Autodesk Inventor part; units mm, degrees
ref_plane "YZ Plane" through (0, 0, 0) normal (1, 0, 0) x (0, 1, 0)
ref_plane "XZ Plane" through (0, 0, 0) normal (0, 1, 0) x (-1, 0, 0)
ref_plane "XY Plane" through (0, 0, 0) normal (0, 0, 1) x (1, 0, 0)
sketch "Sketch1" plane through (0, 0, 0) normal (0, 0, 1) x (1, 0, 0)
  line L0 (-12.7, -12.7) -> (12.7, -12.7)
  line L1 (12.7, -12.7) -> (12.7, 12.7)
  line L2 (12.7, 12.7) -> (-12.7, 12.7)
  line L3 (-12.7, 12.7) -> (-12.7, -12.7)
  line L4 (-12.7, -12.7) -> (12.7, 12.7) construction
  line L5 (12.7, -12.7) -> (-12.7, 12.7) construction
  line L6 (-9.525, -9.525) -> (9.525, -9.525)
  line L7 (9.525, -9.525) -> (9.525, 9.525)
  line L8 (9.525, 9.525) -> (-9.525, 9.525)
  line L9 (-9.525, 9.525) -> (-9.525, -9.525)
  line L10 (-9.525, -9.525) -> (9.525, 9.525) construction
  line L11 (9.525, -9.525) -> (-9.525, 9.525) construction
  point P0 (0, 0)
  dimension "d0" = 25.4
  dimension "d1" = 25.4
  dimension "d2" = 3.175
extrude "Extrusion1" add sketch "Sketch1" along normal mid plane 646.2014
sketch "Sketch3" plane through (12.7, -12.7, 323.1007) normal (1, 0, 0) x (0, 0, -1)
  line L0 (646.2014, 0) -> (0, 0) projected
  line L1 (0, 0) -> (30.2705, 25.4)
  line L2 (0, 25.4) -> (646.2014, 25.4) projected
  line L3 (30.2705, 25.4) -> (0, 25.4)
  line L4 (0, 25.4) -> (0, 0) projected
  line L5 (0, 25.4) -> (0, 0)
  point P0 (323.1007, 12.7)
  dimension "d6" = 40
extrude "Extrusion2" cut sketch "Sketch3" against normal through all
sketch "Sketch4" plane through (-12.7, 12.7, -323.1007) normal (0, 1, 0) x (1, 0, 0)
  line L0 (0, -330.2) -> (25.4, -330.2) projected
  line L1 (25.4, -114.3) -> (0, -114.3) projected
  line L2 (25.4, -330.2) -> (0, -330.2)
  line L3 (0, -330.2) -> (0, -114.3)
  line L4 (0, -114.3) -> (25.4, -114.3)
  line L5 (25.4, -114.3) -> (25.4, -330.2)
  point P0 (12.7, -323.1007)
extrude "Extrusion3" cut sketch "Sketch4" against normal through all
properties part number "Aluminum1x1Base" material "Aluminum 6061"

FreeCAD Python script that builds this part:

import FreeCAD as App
import Part
import Sketcher

V = App.Vector
Q = App.Units.Quantity


def add_polygon(sketch, points):
    """Adds a closed chain of lines whose ends are joined by coincident constraints."""
    first, n = sketch.GeometryCount, len(points)
    for a, b in zip(points, points[1:] + points[:1]):
        sketch.addGeometry(Part.LineSegment(App.Vector(*a, 0), App.Vector(*b, 0)), False)
    for i in range(n):
        sketch.addConstraint(Sketcher.Constraint("Coincident", first + i, 2, first + (i + 1) % n, 1))

doc = App.newDocument("Part")
body = doc.addObject("PartDesign::Body", "Body")
body.AllowCompound = True

# Sketch on XY plane
sketch1 = body.newObject("Sketcher::SketchObject", "Sketch")
sketch1.AttachmentSupport = (doc.getObject("XY_Plane"), [""])
sketch1.MapMode = "FlatFace"
add_polygon(sketch1, [(-12.7, 12.7), (-12.7, -12.7), (12.7, -12.7), (12.7, 12.7)])  # lines 0-3
add_polygon(sketch1, [(9.525, -9.525), (-9.525, -9.525), (-9.525, 9.525), (9.525, 9.525)])  # lines 4-7
sketch1.addConstraint(Sketcher.Constraint("Vertical", 0))
sketch1.addConstraint(Sketcher.Constraint("Horizontal", 1))
sketch1.addConstraint(Sketcher.Constraint("Vertical", 2))
sketch1.addConstraint(Sketcher.Constraint("Horizontal", 3))
sketch1.addConstraint(Sketcher.Constraint("Horizontal", 4))
sketch1.addConstraint(Sketcher.Constraint("Vertical", 5))
sketch1.addConstraint(Sketcher.Constraint("Horizontal", 6))
sketch1.addConstraint(Sketcher.Constraint("Vertical", 7))
sketch1.addConstraint(Sketcher.Constraint("Symmetric", 0, 2, 2, 2, -1, 1))
sketch1.addConstraint(Sketcher.Constraint("Symmetric", 4, 2, 6, 2, -1, 1))
sketch1.addConstraint(Sketcher.Constraint("Equal", 3, 0))
sketch1.addConstraint(Sketcher.Constraint("Equal", 6, 5))
sketch1.addConstraint(Sketcher.Constraint("DistanceX", 1, 1, 1, 2, Q("1 in")))
sketch1.addConstraint(Sketcher.Constraint("DistanceX", 0, 2, 4, 2, Q("0.125 in")))
pad1 = body.newObject("PartDesign::Pad", "Pad")
pad1.Profile = sketch1
pad1.Length = Q("25.441 in")
pad1.Midplane = True

# Sketch on YZ plane
sketch2 = body.newObject("Sketcher::SketchObject", "Sketch001")
sketch2.AttachmentSupport = (doc.getObject("YZ_Plane"), [""])
sketch2.MapMode = "FlatFace"
sketch2.AttachmentOffset = App.Placement(V(0, 0, 0.5 * 25.4), App.Rotation())
add_polygon(sketch2, [(12.7, 323.1007), (-12.7, 323.1007), (12.7, 292.8302)])  # lines 0-2
sketch2.addConstraint(Sketcher.Constraint("Horizontal", 0))
sketch2.addConstraint(Sketcher.Constraint("Vertical", 2))
sketch2.addConstraint(Sketcher.Constraint("DistanceX", 0, 2, 0, 1, Q("1 in")))
sketch2.addConstraint(Sketcher.Constraint("Angle", 1, Q("-50 deg")))
sketch2.addConstraint(Sketcher.Constraint("DistanceX", 0, 2, -1, 1, Q("0.5 in")))
sketch2.addConstraint(Sketcher.Constraint("DistanceY", -1, 1, 0, 2, Q("12.7205 in")))
pocket1 = body.newObject("PartDesign::Pocket", "Pocket")
pocket1.Profile = sketch2
pocket1.Type = "ThroughAll"

# Sketch on XZ plane
sketch3 = body.newObject("Sketcher::SketchObject", "Sketch002")
sketch3.AttachmentSupport = (doc.getObject("XZ_Plane"), [""])
sketch3.MapMode = "FlatFace"
sketch3.AttachmentOffset = App.Placement(V(0, 0, -0.5 * 25.4), App.Rotation())
add_polygon(sketch3, [(-12.7, -208.8007), (-12.7, 7.0993), (12.7, 7.0993), (12.7, -208.8007)])  # lines 0-3
sketch3.addConstraint(Sketcher.Constraint("Vertical", 0))
sketch3.addConstraint(Sketcher.Constraint("Horizontal", 1))
sketch3.addConstraint(Sketcher.Constraint("Vertical", 2))
sketch3.addConstraint(Sketcher.Constraint("Horizontal", 3))
sketch3.addConstraint(Sketcher.Constraint("DistanceX", 1, 1, 1, 2, Q("1 in")))
sketch3.addConstraint(Sketcher.Constraint("DistanceY", 0, 1, 0, 2, Q("8.5 in")))
sketch3.addConstraint(Sketcher.Constraint("DistanceX", 0, 2, -1, 1, Q("0.5 in")))
sketch3.addConstraint(Sketcher.Constraint("DistanceY", -1, 1, 0, 2, Q("0.2795 in")))
pocket2 = body.newObject("PartDesign::Pocket", "Pocket001")
pocket2.Profile = sketch3
pocket2.Type = "ThroughAll"
pocket2.Reversed = True

doc.recompute()
